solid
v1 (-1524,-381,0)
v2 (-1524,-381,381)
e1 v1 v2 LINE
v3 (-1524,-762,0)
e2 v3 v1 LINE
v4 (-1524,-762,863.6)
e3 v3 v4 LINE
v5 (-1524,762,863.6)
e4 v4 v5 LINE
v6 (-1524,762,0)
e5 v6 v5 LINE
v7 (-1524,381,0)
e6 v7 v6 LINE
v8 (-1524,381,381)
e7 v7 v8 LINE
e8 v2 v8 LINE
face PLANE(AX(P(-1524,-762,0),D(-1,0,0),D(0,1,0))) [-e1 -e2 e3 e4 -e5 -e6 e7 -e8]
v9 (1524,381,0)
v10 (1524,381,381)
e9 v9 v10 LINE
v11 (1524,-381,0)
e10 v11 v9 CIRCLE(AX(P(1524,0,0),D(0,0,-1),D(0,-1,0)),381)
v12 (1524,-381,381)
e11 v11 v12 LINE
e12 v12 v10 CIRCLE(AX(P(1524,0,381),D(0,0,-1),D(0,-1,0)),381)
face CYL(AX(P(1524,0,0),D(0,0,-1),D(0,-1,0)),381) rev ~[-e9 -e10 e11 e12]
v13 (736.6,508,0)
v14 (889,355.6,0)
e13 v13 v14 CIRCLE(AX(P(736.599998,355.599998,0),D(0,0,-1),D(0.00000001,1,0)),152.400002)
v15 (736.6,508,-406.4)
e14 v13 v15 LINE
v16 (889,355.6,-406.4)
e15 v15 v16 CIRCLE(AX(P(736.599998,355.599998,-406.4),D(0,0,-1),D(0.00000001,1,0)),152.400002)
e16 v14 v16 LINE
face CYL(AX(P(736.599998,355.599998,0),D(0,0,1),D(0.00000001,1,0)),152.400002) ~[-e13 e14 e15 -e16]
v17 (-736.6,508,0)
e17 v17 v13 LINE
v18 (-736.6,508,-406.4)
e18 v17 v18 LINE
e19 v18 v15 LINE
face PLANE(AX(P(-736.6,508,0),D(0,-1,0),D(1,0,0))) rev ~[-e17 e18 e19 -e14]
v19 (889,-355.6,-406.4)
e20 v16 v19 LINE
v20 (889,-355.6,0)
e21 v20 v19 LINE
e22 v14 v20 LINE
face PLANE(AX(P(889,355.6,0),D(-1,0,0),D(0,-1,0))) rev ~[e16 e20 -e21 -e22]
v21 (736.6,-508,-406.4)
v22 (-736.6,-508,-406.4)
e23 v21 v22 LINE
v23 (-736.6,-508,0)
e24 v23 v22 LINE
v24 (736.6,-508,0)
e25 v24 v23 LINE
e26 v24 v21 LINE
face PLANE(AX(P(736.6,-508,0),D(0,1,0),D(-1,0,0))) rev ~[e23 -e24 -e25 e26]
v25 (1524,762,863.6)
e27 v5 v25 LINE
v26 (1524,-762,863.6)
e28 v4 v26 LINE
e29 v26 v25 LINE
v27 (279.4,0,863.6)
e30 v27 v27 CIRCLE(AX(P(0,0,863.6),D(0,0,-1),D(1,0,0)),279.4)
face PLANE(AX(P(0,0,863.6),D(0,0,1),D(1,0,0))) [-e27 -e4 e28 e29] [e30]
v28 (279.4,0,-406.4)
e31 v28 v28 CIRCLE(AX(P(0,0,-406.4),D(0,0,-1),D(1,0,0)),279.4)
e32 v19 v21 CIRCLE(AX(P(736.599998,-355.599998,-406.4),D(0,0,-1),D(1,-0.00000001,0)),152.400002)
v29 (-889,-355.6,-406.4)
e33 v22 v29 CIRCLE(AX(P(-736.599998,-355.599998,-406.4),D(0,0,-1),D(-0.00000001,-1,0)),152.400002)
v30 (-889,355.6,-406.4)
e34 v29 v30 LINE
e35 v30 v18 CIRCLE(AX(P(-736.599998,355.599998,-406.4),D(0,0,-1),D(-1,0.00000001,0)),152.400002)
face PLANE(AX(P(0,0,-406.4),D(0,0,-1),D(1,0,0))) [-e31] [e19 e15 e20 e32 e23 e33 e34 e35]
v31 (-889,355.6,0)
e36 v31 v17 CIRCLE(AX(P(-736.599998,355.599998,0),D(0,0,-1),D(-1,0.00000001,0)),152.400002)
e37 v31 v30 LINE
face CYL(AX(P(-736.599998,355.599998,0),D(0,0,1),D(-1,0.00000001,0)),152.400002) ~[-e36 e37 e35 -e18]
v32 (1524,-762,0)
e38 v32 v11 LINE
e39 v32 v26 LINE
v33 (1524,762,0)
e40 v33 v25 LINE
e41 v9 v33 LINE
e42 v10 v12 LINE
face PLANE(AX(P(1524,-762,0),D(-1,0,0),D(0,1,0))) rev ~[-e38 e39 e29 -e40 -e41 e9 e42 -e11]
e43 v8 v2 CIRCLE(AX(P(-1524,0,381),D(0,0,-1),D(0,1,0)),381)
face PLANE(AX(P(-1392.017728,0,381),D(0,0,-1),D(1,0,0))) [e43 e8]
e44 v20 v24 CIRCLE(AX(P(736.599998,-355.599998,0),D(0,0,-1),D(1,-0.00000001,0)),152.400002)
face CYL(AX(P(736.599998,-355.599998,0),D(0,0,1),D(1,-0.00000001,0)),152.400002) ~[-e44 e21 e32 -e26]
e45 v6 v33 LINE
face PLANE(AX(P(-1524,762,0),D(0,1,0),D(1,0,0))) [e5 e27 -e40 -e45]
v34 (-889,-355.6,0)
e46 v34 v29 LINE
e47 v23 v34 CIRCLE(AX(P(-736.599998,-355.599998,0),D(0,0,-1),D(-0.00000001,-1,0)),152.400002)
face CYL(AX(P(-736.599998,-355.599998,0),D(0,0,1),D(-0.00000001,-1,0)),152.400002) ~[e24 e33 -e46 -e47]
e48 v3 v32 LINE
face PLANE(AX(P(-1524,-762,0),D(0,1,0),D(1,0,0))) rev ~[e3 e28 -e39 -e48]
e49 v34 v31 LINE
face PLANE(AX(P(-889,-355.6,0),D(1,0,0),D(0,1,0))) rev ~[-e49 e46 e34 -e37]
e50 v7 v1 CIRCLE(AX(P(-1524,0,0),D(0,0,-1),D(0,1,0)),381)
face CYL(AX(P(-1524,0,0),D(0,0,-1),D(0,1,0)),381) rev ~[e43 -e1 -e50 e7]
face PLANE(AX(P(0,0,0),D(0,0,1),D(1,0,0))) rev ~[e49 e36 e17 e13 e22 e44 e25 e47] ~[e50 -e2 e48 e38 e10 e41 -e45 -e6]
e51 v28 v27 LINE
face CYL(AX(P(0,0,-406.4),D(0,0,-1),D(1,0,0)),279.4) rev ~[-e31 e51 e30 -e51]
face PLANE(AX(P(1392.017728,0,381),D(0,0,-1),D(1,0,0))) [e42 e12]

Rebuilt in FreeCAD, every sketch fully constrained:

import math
import FreeCAD as App
import Part
import Sketcher

V = App.Vector
Q = App.Units.Quantity


def add_polygon(sketch, points):
    """Adds a closed chain of lines whose ends are joined by coincident constraints."""
    first, n = sketch.GeometryCount, len(points)
    for a, b in zip(points, points[1:] + points[:1]):
        sketch.addGeometry(Part.LineSegment(App.Vector(*a, 0), App.Vector(*b, 0)), False)
    for i in range(n):
        sketch.addConstraint(Sketcher.Constraint("Coincident", first + i, 2, first + (i + 1) % n, 1))

doc = App.newDocument("Part")
body = doc.addObject("PartDesign::Body", "Body")

# Sketch on XY plane
sketch1 = body.newObject("Sketcher::SketchObject", "Sketch")
sketch1.AttachmentSupport = (doc.getObject("XY_Plane"), [""])
sketch1.MapMode = "FlatFace"
add_polygon(sketch1, [(-1524, 762), (-1524, -762), (1524, -762), (1524, 762)])  # lines 0-3
sketch1.addConstraint([
    Sketcher.Constraint("Vertical", 0),
    Sketcher.Constraint("Horizontal", 1),
    Sketcher.Constraint("Vertical", 2),
    Sketcher.Constraint("Horizontal", 3),
    Sketcher.Constraint("Symmetric", 0, 2, 2, 2, -1, 1),
    Sketcher.Constraint("DistanceX", 1, 1, 1, 2, Q("120 in")),
    Sketcher.Constraint("DistanceY", 0, 2, 0, 1, Q("60 in")),
])
pad1 = body.newObject("PartDesign::Pad", "Pad")
pad1.Profile = sketch1
pad1.Length = Q("34 in")

# Sketch on XY plane
sketch2 = body.newObject("Sketcher::SketchObject", "Sketch001")
sketch2.AttachmentSupport = (doc.getObject("XY_Plane"), [""])
sketch2.MapMode = "FlatFace"
sketch2.addGeometry([
    Part.ArcOfCircle(Part.Circle(V(-1524, 0, 0), V(0, 0, 1), 381), math.radians(-90), math.radians(90)),
    Part.LineSegment(V(-1524, -381, 0), V(-1524, 381, 0)),
    Part.LineSegment(V(1524, 381, 0), V(1524, -381, 0)),
    Part.ArcOfCircle(Part.Circle(V(1524, 0, 0), V(0, 0, 1), 381), math.radians(90), math.radians(270)),
], False)
sketch2.addConstraint([
    Sketcher.Constraint("Coincident", 0, 1, 1, 1),
    Sketcher.Constraint("Coincident", 1, 2, 0, 2),
    Sketcher.Constraint("Coincident", 2, 1, 3, 1),
    Sketcher.Constraint("Coincident", 3, 2, 2, 2),
    Sketcher.Constraint("Vertical", 1),
    Sketcher.Constraint("Vertical", 2),
    Sketcher.Constraint("Equal", 0, 3),
    Sketcher.Constraint("Symmetric", 0, 3, 3, 3, -1, 1),
    Sketcher.Constraint("Symmetric", 1, 2, 2, 1, -2),
    Sketcher.Constraint("Vertical", 3, 3, 2, 1),
    Sketcher.Constraint("Radius", 0, Q("15 in")),
    Sketcher.Constraint("DistanceX", 0, 3, -1, 1, Q("60 in")),
])
pocket1 = body.newObject("PartDesign::Pocket", "Pocket")
pocket1.Profile = sketch2
pocket1.Length = Q("15 in")
pocket1.Reversed = True

# Sketch on XY plane
sketch3 = body.newObject("Sketcher::SketchObject", "Sketch002")
sketch3.AttachmentSupport = (doc.getObject("XY_Plane"), [""])
sketch3.MapMode = "FlatFace"
sketch3.addGeometry([
    Part.ArcOfCircle(Part.Circle(V(737, -356, 0), V(0, 0, 1), 152), math.radians(-90), math.radians(0)),  # 0
    Part.LineSegment(V(737, -508, 0), V(-737, -508, 0)),  # 1
    Part.ArcOfCircle(Part.Circle(V(-737, -356, 0), V(0, 0, 1), 152), math.radians(-180), math.radians(-90)),  # 2
    Part.LineSegment(V(-889, -356, 0), V(-889, 356, 0)),  # 3
    Part.ArcOfCircle(Part.Circle(V(-737, 356, 0), V(0, 0, 1), 152), math.radians(90), math.radians(180)),  # 4
    Part.LineSegment(V(-737, 508, 0), V(737, 508, 0)),  # 5
    Part.ArcOfCircle(Part.Circle(V(737, 356, 0), V(0, 0, 1), 152), math.radians(0), math.radians(90)),  # 6
    Part.LineSegment(V(889, 356, 0), V(889, -356, 0)),  # 7
], False)
sketch3.addConstraint([
    Sketcher.Constraint("Tangent", 0, 1, 1, 1),
    Sketcher.Constraint("Tangent", 1, 2, 2, 2),
    Sketcher.Constraint("Tangent", 2, 1, 3, 1),
    Sketcher.Constraint("Tangent", 3, 2, 4, 2),
    Sketcher.Constraint("Tangent", 4, 1, 5, 1),
    Sketcher.Constraint("Tangent", 5, 2, 6, 2),
    Sketcher.Constraint("Tangent", 6, 1, 7, 1),
    Sketcher.Constraint("Tangent", 7, 2, 0, 2),
    Sketcher.Constraint("Horizontal", 1),
    Sketcher.Constraint("Vertical", 3),
    Sketcher.Constraint("Horizontal", 5),
    Sketcher.Constraint("Vertical", 7),
    Sketcher.Constraint("Equal", 0, 2),
    Sketcher.Constraint("Equal", 2, 4),
    Sketcher.Constraint("Equal", 4, 6),
    Sketcher.Constraint("Symmetric", 0, 3, 4, 3, -1, 1),
    Sketcher.Constraint("Radius", 0, Q("6.0000001 in")),
    Sketcher.Constraint("DistanceX", 1, 2, 1, 1, Q("58 in")),
    Sketcher.Constraint("DistanceY", 3, 1, 3, 2, Q("28 in")),
])
pad2 = body.newObject("PartDesign::Pad", "Pad001")
pad2.Profile = sketch3
pad2.Length = Q("16 in")
pad2.Reversed = True

# Sketch on XY plane
sketch4 = body.newObject("Sketcher::SketchObject", "Sketch003")
sketch4.AttachmentSupport = (doc.getObject("XY_Plane"), [""])
sketch4.MapMode = "FlatFace"
sketch4.AttachmentOffset = App.Placement(V(0, 0, -16 * 25.4), App.Rotation())
sketch4.addGeometry(Part.Circle(V(0, 0, 0), V(0, 0, 1), 279), False)
sketch4.addConstraint([
    Sketcher.Constraint("Coincident", 0, 3, -1, 1),
    Sketcher.Constraint("Diameter", 0, Q("22 in")),
])
pocket2 = body.newObject("PartDesign::Pocket", "Pocket001")
pocket2.Profile = sketch4
pocket2.Type = "ThroughAll"
pocket2.Reversed = True

doc.recompute()
